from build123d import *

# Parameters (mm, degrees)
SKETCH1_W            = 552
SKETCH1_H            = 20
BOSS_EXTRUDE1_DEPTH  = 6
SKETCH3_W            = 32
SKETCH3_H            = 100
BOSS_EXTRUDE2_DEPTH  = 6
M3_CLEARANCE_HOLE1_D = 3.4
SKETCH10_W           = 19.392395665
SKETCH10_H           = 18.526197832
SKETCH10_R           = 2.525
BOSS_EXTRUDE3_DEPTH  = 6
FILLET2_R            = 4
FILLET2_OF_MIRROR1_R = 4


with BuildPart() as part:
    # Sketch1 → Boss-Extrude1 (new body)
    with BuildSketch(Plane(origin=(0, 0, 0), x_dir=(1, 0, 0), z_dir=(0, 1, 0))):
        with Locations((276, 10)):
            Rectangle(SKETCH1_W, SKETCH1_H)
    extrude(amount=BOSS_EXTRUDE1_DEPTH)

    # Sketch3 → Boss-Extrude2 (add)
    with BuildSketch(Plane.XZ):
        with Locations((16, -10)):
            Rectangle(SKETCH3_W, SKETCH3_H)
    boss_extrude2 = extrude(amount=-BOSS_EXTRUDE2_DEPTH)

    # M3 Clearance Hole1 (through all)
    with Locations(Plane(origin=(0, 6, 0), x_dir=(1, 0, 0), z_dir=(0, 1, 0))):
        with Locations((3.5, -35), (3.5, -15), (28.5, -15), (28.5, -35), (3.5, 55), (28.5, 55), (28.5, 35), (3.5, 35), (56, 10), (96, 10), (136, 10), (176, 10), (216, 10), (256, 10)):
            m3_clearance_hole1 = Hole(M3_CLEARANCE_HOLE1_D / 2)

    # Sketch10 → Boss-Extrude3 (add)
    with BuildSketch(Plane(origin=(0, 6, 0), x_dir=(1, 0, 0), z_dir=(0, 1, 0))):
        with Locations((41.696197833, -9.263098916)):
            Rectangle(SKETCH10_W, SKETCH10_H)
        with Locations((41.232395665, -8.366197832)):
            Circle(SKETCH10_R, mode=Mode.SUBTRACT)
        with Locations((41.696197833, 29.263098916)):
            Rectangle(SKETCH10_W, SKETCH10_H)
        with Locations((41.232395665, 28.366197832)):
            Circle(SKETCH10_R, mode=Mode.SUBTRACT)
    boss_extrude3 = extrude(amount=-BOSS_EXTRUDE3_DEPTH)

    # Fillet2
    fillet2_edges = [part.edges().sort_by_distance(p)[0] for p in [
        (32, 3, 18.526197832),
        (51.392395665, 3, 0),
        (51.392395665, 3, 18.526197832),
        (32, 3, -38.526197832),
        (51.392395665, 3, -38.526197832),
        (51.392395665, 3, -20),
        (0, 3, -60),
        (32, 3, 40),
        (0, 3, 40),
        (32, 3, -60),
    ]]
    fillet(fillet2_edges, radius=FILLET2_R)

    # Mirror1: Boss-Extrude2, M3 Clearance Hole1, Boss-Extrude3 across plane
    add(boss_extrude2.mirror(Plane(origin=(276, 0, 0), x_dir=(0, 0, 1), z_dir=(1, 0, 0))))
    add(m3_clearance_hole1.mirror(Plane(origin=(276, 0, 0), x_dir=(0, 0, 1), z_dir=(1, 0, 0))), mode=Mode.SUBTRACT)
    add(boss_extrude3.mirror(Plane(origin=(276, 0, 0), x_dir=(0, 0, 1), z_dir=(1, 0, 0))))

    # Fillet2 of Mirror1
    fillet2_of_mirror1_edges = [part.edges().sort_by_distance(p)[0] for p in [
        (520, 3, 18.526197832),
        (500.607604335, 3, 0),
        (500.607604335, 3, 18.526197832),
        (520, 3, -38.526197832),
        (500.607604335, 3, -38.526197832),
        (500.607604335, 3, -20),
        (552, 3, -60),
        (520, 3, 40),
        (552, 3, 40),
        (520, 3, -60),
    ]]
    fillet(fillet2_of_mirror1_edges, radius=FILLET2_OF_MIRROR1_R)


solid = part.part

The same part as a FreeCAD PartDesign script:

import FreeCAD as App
import Part
import Sketcher
from FreeCAD import Vector
Q = App.Units.Quantity


def edges_at(feature, points):
    """Names of the edges that pass closest to the given points."""
    edges = feature.Shape.Edges
    near = lambda p: min(range(len(edges)), key=lambda i: edges[i].distToShape(Part.Vertex(*p))[0])
    return sorted({f"Edge{near(p) + 1}" for p in points})


def add_polygon(sketch, points):
    """Adds a closed chain of lines whose ends are joined by coincident constraints."""
    first, n = sketch.GeometryCount, len(points)
    for a, b in zip(points, points[1:] + points[:1]):
        sketch.addGeometry(Part.LineSegment(App.Vector(*a, 0), App.Vector(*b, 0)), False)
    for i in range(n):
        sketch.addConstraint(Sketcher.Constraint("Coincident", first + i, 2, first + (i + 1) % n, 1))

doc = App.newDocument("Part")
body = doc.addObject("PartDesign::Body", "Body")

# Sketch on XZ plane
sketch1 = body.newObject("Sketcher::SketchObject", "Sketch")
sketch1.AttachmentSupport = (doc.getObject("XZ_Plane"), [""])
sketch1.MapMode = "FlatFace"
add_polygon(sketch1, [(0, -20), (0, 0), (552, 0), (552, -20)])  # lines 0-3
sketch1.addConstraint(Sketcher.Constraint("Vertical", 0))
sketch1.addConstraint(Sketcher.Constraint("Horizontal", 1))
sketch1.addConstraint(Sketcher.Constraint("Vertical", 2))
sketch1.addConstraint(Sketcher.Constraint("Horizontal", 3))
sketch1.addConstraint(Sketcher.Constraint("Coincident", 0, 2, -1, 1))
sketch1.addConstraint(Sketcher.Constraint("DistanceX", 1, 1, 1, 2, Q("552 mm")))
sketch1.addConstraint(Sketcher.Constraint("DistanceY", 0, 1, 0, 2, Q("20 mm")))
pad1 = body.newObject("PartDesign::Pad", "Pad")
pad1.Profile = sketch1
pad1.Length = 6
pad1.Reversed = True

# Sketch on XZ plane
sketch2 = body.newObject("Sketcher::SketchObject", "Sketch001")
sketch2.AttachmentSupport = (doc.getObject("XZ_Plane"), [""])
sketch2.MapMode = "FlatFace"
add_polygon(sketch2, [(0, 40), (0, -60), (32, -60), (32, 40)])  # lines 0-3
sketch2.addConstraint(Sketcher.Constraint("Vertical", 0))
sketch2.addConstraint(Sketcher.Constraint("Horizontal", 1))
sketch2.addConstraint(Sketcher.Constraint("Vertical", 2))
sketch2.addConstraint(Sketcher.Constraint("Horizontal", 3))
sketch2.addConstraint(Sketcher.Constraint("PointOnObject", 0, 2, -2))
sketch2.addConstraint(Sketcher.Constraint("DistanceX", 1, 1, 1, 2, Q("32 mm")))
sketch2.addConstraint(Sketcher.Constraint("DistanceY", 0, 2, 0, 1, Q("100 mm")))
sketch2.addConstraint(Sketcher.Constraint("DistanceY", 0, 2, -1, 1, Q("60 mm")))
pad2 = body.newObject("PartDesign::Pad", "Pad001")
pad2.Profile = sketch2
pad2.Length = 6
pad2.Reversed = True

# Sketch on XZ plane
sketch3 = body.newObject("Sketcher::SketchObject", "Sketch002")
sketch3.AttachmentSupport = (doc.getObject("XZ_Plane"), [""])
sketch3.MapMode = "FlatFace"
sketch3.AttachmentOffset = App.Placement(Vector(0, 0, -6), App.Rotation())
sketch3.addGeometry(Part.Circle(Vector(3.5, 35, 0), Vector(0, 0, 1), 1.7), False)
sketch3.addGeometry(Part.Circle(Vector(3.5, 15, 0), Vector(0, 0, 1), 1.7), False)
sketch3.addGeometry(Part.Circle(Vector(28.5, 15, 0), Vector(0, 0, 1), 1.7), False)
sketch3.addGeometry(Part.Circle(Vector(28.5, 35, 0), Vector(0, 0, 1), 1.7), False)
sketch3.addGeometry(Part.Circle(Vector(3.5, -55, 0), Vector(0, 0, 1), 1.7), False)
sketch3.addGeometry(Part.Circle(Vector(28.5, -55, 0), Vector(0, 0, 1), 1.7), False)
sketch3.addGeometry(Part.Circle(Vector(28.5, -35, 0), Vector(0, 0, 1), 1.7), False)
sketch3.addGeometry(Part.Circle(Vector(3.5, -35, 0), Vector(0, 0, 1), 1.7), False)
sketch3.addGeometry(Part.Circle(Vector(56, -10, 0), Vector(0, 0, 1), 1.7), False)
sketch3.addGeometry(Part.Circle(Vector(96, -10, 0), Vector(0, 0, 1), 1.7), False)
sketch3.addGeometry(Part.Circle(Vector(136, -10, 0), Vector(0, 0, 1), 1.7), False)
sketch3.addGeometry(Part.Circle(Vector(176, -10, 0), Vector(0, 0, 1), 1.7), False)
sketch3.addGeometry(Part.Circle(Vector(216, -10, 0), Vector(0, 0, 1), 1.7), False)
sketch3.addGeometry(Part.Circle(Vector(256, -10, 0), Vector(0, 0, 1), 1.7), False)
sketch3.addConstraint(Sketcher.Constraint("Equal", 0, 1))
sketch3.addConstraint(Sketcher.Constraint("Equal", 1, 2))
sketch3.addConstraint(Sketcher.Constraint("Equal", 2, 3))
sketch3.addConstraint(Sketcher.Constraint("Equal", 3, 4))
sketch3.addConstraint(Sketcher.Constraint("Equal", 4, 5))
sketch3.addConstraint(Sketcher.Constraint("Equal", 5, 6))
sketch3.addConstraint(Sketcher.Constraint("Equal", 6, 7))
sketch3.addConstraint(Sketcher.Constraint("Equal", 7, 8))
sketch3.addConstraint(Sketcher.Constraint("Equal", 8, 9))
sketch3.addConstraint(Sketcher.Constraint("Equal", 9, 10))
sketch3.addConstraint(Sketcher.Constraint("Equal", 10, 11))
sketch3.addConstraint(Sketcher.Constraint("Equal", 11, 12))
sketch3.addConstraint(Sketcher.Constraint("Equal", 12, 13))
sketch3.addConstraint(Sketcher.Constraint("Symmetric", 3, 3, 6, 3, -1))
sketch3.addConstraint(Sketcher.Constraint("Symmetric", 0, 3, 7, 3, -1))
sketch3.addConstraint(Sketcher.Constraint("Horizontal", 1, 3, 2, 3))
sketch3.addConstraint(Sketcher.Constraint("Horizontal", 0, 3, 3, 3))
sketch3.addConstraint(Sketcher.Constraint("Horizontal", 4, 3, 5, 3))
sketch3.addConstraint(Sketcher.Constraint("Horizontal", 8, 3, 9, 3))
sketch3.addConstraint(Sketcher.Constraint("Horizontal", 9, 3, 10, 3))
sketch3.addConstraint(Sketcher.Constraint("Horizontal", 10, 3, 11, 3))
sketch3.addConstraint(Sketcher.Constraint("Horizontal", 11, 3, 12, 3))
sketch3.addConstraint(Sketcher.Constraint("Horizontal", 12, 3, 13, 3))
sketch3.addConstraint(Sketcher.Constraint("Vertical", 0, 3, 1, 3))
sketch3.addConstraint(Sketcher.Constraint("Vertical", 2, 3, 3, 3))
sketch3.addConstraint(Sketcher.Constraint("Vertical", 1, 3, 4, 3))
sketch3.addConstraint(Sketcher.Constraint("Vertical", 3, 3, 5, 3))
sketch3.addConstraint(Sketcher.Constraint("Diameter", 0, Q("3.4 mm")))
sketch3.addConstraint(Sketcher.Constraint("DistanceY", -1, 1, 0, 3, Q("35 mm")))
sketch3.addConstraint(Sketcher.Constraint("DistanceY", -1, 1, 1, 3, Q("15 mm")))
sketch3.addConstraint(Sketcher.Constraint("DistanceY", 4, 3, -1, 1, Q("55 mm")))
sketch3.addConstraint(Sketcher.Constraint("DistanceX", -1, 1, 8, 3, Q("56 mm")))
sketch3.addConstraint(Sketcher.Constraint("DistanceY", 8, 3, -1, 1, Q("10 mm")))
sketch3.addConstraint(Sketcher.Constraint("DistanceX", -1, 1, 9, 3, Q("96 mm")))
sketch3.addConstraint(Sketcher.Constraint("DistanceX", -1, 1, 10, 3, Q("136 mm")))
sketch3.addConstraint(Sketcher.Constraint("DistanceX", -1, 1, 11, 3, Q("176 mm")))
sketch3.addConstraint(Sketcher.Constraint("DistanceX", -1, 1, 12, 3, Q("216 mm")))
sketch3.addConstraint(Sketcher.Constraint("DistanceX", -1, 1, 13, 3, Q("256 mm")))
sketch3.addConstraint(Sketcher.Constraint("DistanceX", 1, 3, 2, 3, Q("25 mm")))
sketch3.addConstraint(Sketcher.Constraint("DistanceX", -1, 1, 0, 3, Q("3.5 mm")))
doc.recompute()
hole = body.newObject("PartDesign::Hole", "Hole")
hole.Profile = sketch3
hole.ThreadType = "None"
hole.Diameter = 3.4
hole.DepthType = "ThroughAll"
hole.Reversed = True

# Sketch on XZ plane
sketch4 = body.newObject("Sketcher::SketchObject", "Sketch003")
sketch4.AttachmentSupport = (doc.getObject("XZ_Plane"), [""])
sketch4.MapMode = "FlatFace"
sketch4.AttachmentOffset = App.Placement(Vector(0, 0, -6), App.Rotation())
add_polygon(sketch4, [(32, 0), (32, 18.526198), (51.392396, 18.526198), (51.392396, 0)])  # lines 0-3
sketch4.addGeometry(Part.Circle(Vector(41.232396, 8.366198, 0), Vector(0, 0, 1), 2.525), False)  # 4
add_polygon(sketch4, [(32, -38.526198), (32, -20), (51.392396, -20), (51.392396, -38.526198)])  # lines 5-8
sketch4.addGeometry(Part.Circle(Vector(41.232396, -28.366198, 0), Vector(0, 0, 1), 2.525), False)  # 9
sketch4.addConstraint(Sketcher.Constraint("Vertical", 0))
sketch4.addConstraint(Sketcher.Constraint("Horizontal", 1))
sketch4.addConstraint(Sketcher.Constraint("Vertical", 2))
sketch4.addConstraint(Sketcher.Constraint("Horizontal", 3))
sketch4.addConstraint(Sketcher.Constraint("Vertical", 5))
sketch4.addConstraint(Sketcher.Constraint("Horizontal", 6))
sketch4.addConstraint(Sketcher.Constraint("Vertical", 7))
sketch4.addConstraint(Sketcher.Constraint("Horizontal", 8))
sketch4.addConstraint(Sketcher.Constraint("Equal", 4, 9))
sketch4.addConstraint(Sketcher.Constraint("PointOnObject", 2, 2, -1))
sketch4.addConstraint(Sketcher.Constraint("Vertical", 4, 3, 9, 3))
sketch4.addConstraint(Sketcher.Constraint("Vertical", 3, 2, 5, 2))
sketch4.addConstraint(Sketcher.Constraint("Vertical", 2, 2, 6, 2))
sketch4.addConstraint(Sketcher.Constraint("Equal", 2, 5))
sketch4.addConstraint(Sketcher.Constraint("Diameter", 4, Q("5.05 mm")))
sketch4.addConstraint(Sketcher.Constraint("DistanceX", -1, 1, 0, 2, Q("32 mm")))
sketch4.addConstraint(Sketcher.Constraint("DistanceY", 5, 2, -1, 1, Q("20 mm")))
sketch4.addConstraint(Sketcher.Constraint("DistanceY", 4, 3, 0, 2, Q("10.16 mm")))
sketch4.addConstraint(Sketcher.Constraint("DistanceX", 4, 3, 1, 2, Q("10.16 mm")))
sketch4.addConstraint(Sketcher.Constraint("DistanceY", 7, 2, 9, 3, Q("10.16 mm")))
sketch4.addConstraint(Sketcher.Constraint("DistanceX", 1, 1, 1, 2, Q("19.392396 mm")))
sketch4.addConstraint(Sketcher.Constraint("DistanceY", 0, 1, 0, 2, Q("18.526198 mm")))
pad3 = body.newObject("PartDesign::Pad", "Pad002")
pad3.Profile = sketch4
pad3.Length = 6
doc.recompute()

fillet = body.newObject("PartDesign::Fillet", "Fillet")
fillet.Base = (pad3, edges_at(pad3, [
    (32, 3, 18.526),
    (51.392, 3, 0),
    (51.392, 3, 18.526),
    (32, 3, -38.526),
    (51.392, 3, -38.526),
    (51.392, 3, -20),
    (0, 3, -60),
    (32, 3, 40),
    (0, 3, 40),
    (32, 3, -60),
]))
fillet.Radius = 4
doc.recompute()

datumplane = body.newObject("PartDesign::Plane", "DatumPlane")
datumplane.AttachmentSupport = (doc.getObject("YZ_Plane"), [""])
datumplane.MapMode = "FlatFace"
datumplane.AttachmentOffset = App.Placement(Vector(0, 0, 276), App.Rotation())
mirrored = body.newObject("PartDesign::Mirrored", "Mirrored")
mirrored.Originals = [pad2, hole, pad3]
mirrored.MirrorPlane = (datumplane, [""])
body.Tip = mirrored
doc.recompute()

fillet2 = body.newObject("PartDesign::Fillet", "Fillet001")
fillet2.Base = (mirrored, edges_at(mirrored, [
    (520, 3, 18.526),
    (500.608, 3, 0),
    (500.608, 3, 18.526),
    (520, 3, -38.526),
    (500.608, 3, -38.526),
    (500.608, 3, -20),
    (552, 3, -60),
    (520, 3, 40),
    (552, 3, 40),
    (520, 3, -60),
]))
fillet2.Radius = 4

doc.recompute()
